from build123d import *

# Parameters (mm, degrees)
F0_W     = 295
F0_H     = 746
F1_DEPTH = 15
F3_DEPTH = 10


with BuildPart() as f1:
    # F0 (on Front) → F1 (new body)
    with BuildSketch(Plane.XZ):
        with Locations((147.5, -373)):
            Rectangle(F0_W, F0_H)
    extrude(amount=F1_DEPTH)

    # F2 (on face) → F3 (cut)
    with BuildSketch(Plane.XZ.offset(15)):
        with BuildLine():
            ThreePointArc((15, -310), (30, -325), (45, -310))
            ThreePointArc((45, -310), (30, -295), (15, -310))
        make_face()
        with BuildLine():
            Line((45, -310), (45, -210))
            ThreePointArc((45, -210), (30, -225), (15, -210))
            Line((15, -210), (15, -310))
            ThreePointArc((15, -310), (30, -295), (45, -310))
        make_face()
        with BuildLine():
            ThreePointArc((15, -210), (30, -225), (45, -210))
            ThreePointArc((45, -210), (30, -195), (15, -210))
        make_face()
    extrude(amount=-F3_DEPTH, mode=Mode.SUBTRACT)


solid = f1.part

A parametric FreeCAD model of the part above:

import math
import FreeCAD as App
import Part
import Sketcher
from FreeCAD import Vector


def add_polygon(sketch, points):
    """Adds a closed chain of lines whose ends are joined by coincident constraints."""
    first, n = sketch.GeometryCount, len(points)
    for a, b in zip(points, points[1:] + points[:1]):
        sketch.addGeometry(Part.LineSegment(App.Vector(*a, 0), App.Vector(*b, 0)), False)
    for i in range(n):
        sketch.addConstraint(Sketcher.Constraint("Coincident", first + i, 2, first + (i + 1) % n, 1))

doc = App.newDocument("Part")
body = doc.addObject("PartDesign::Body", "Body")

sketch1 = body.newObject("Sketcher::SketchObject", "Sketch")
sketch1.AttachmentSupport = (doc.getObject("XZ_Plane"), [""])
sketch1.MapMode = "FlatFace"
add_polygon(sketch1, [(0, 0), (0, -746), (295, -746), (295, 0)])
sketch1.addConstraint(Sketcher.Constraint("Vertical", 0))
sketch1.addConstraint(Sketcher.Constraint("Horizontal", 1))
sketch1.addConstraint(Sketcher.Constraint("Vertical", 2))
sketch1.addConstraint(Sketcher.Constraint("Horizontal", 3))
sketch1.addConstraint(Sketcher.Constraint("Coincident", 3, 2, -1, 1))
sketch1.addConstraint(Sketcher.Constraint("DistanceX", 1, 1, 1, 2, 295.0))
sketch1.addConstraint(Sketcher.Constraint("DistanceY", 0, 2, 0, 1, 746.0))
pad1 = body.newObject("PartDesign::Pad", "Pad")
pad1.Profile = sketch1
pad1.Length = 15

sketch2 = body.newObject("Sketcher::SketchObject", "Sketch001")
sketch2.AttachmentSupport = (doc.getObject("XZ_Plane"), [""])
sketch2.MapMode = "FlatFace"
sketch2.AttachmentOffset = App.Placement(Vector(0, 0, 15), App.Rotation())
sketch2.addGeometry(Part.ArcOfCircle(Part.Circle(Vector(30, -310, 0), Vector(0, 0, 1), 15), math.radians(180), math.radians(360)), False)
sketch2.addGeometry(Part.LineSegment(Vector(45, -310, 0), Vector(45, -210, 0)), False)
sketch2.addGeometry(Part.ArcOfCircle(Part.Circle(Vector(30, -210, 0), Vector(0, 0, 1), 15), math.radians(0), math.radians(180)), False)
sketch2.addGeometry(Part.LineSegment(Vector(15, -210, 0), Vector(15, -310, 0)), False)
sketch2.addConstraint(Sketcher.Constraint("Tangent", 0, 2, 1, 1))
sketch2.addConstraint(Sketcher.Constraint("Tangent", 1, 2, 2, 1))
sketch2.addConstraint(Sketcher.Constraint("Tangent", 2, 2, 3, 1))
sketch2.addConstraint(Sketcher.Constraint("Tangent", 3, 2, 0, 1))
sketch2.addConstraint(Sketcher.Constraint("Vertical", 1))
sketch2.addConstraint(Sketcher.Constraint("Vertical", 3))
sketch2.addConstraint(Sketcher.Constraint("Radius", 0, 15.0))
sketch2.addConstraint(Sketcher.Constraint("DistanceY", 1, 1, 1, 2, 100.0))
sketch2.addConstraint(Sketcher.Constraint("DistanceX", -1, 1, 0, 3, 30.0))
sketch2.addConstraint(Sketcher.Constraint("DistanceY", 0, 3, -1, 1, 310.0))
pocket1 = body.newObject("PartDesign::Pocket", "Pocket")
pocket1.Profile = sketch2
pocket1.Length = 10

doc.recompute()
